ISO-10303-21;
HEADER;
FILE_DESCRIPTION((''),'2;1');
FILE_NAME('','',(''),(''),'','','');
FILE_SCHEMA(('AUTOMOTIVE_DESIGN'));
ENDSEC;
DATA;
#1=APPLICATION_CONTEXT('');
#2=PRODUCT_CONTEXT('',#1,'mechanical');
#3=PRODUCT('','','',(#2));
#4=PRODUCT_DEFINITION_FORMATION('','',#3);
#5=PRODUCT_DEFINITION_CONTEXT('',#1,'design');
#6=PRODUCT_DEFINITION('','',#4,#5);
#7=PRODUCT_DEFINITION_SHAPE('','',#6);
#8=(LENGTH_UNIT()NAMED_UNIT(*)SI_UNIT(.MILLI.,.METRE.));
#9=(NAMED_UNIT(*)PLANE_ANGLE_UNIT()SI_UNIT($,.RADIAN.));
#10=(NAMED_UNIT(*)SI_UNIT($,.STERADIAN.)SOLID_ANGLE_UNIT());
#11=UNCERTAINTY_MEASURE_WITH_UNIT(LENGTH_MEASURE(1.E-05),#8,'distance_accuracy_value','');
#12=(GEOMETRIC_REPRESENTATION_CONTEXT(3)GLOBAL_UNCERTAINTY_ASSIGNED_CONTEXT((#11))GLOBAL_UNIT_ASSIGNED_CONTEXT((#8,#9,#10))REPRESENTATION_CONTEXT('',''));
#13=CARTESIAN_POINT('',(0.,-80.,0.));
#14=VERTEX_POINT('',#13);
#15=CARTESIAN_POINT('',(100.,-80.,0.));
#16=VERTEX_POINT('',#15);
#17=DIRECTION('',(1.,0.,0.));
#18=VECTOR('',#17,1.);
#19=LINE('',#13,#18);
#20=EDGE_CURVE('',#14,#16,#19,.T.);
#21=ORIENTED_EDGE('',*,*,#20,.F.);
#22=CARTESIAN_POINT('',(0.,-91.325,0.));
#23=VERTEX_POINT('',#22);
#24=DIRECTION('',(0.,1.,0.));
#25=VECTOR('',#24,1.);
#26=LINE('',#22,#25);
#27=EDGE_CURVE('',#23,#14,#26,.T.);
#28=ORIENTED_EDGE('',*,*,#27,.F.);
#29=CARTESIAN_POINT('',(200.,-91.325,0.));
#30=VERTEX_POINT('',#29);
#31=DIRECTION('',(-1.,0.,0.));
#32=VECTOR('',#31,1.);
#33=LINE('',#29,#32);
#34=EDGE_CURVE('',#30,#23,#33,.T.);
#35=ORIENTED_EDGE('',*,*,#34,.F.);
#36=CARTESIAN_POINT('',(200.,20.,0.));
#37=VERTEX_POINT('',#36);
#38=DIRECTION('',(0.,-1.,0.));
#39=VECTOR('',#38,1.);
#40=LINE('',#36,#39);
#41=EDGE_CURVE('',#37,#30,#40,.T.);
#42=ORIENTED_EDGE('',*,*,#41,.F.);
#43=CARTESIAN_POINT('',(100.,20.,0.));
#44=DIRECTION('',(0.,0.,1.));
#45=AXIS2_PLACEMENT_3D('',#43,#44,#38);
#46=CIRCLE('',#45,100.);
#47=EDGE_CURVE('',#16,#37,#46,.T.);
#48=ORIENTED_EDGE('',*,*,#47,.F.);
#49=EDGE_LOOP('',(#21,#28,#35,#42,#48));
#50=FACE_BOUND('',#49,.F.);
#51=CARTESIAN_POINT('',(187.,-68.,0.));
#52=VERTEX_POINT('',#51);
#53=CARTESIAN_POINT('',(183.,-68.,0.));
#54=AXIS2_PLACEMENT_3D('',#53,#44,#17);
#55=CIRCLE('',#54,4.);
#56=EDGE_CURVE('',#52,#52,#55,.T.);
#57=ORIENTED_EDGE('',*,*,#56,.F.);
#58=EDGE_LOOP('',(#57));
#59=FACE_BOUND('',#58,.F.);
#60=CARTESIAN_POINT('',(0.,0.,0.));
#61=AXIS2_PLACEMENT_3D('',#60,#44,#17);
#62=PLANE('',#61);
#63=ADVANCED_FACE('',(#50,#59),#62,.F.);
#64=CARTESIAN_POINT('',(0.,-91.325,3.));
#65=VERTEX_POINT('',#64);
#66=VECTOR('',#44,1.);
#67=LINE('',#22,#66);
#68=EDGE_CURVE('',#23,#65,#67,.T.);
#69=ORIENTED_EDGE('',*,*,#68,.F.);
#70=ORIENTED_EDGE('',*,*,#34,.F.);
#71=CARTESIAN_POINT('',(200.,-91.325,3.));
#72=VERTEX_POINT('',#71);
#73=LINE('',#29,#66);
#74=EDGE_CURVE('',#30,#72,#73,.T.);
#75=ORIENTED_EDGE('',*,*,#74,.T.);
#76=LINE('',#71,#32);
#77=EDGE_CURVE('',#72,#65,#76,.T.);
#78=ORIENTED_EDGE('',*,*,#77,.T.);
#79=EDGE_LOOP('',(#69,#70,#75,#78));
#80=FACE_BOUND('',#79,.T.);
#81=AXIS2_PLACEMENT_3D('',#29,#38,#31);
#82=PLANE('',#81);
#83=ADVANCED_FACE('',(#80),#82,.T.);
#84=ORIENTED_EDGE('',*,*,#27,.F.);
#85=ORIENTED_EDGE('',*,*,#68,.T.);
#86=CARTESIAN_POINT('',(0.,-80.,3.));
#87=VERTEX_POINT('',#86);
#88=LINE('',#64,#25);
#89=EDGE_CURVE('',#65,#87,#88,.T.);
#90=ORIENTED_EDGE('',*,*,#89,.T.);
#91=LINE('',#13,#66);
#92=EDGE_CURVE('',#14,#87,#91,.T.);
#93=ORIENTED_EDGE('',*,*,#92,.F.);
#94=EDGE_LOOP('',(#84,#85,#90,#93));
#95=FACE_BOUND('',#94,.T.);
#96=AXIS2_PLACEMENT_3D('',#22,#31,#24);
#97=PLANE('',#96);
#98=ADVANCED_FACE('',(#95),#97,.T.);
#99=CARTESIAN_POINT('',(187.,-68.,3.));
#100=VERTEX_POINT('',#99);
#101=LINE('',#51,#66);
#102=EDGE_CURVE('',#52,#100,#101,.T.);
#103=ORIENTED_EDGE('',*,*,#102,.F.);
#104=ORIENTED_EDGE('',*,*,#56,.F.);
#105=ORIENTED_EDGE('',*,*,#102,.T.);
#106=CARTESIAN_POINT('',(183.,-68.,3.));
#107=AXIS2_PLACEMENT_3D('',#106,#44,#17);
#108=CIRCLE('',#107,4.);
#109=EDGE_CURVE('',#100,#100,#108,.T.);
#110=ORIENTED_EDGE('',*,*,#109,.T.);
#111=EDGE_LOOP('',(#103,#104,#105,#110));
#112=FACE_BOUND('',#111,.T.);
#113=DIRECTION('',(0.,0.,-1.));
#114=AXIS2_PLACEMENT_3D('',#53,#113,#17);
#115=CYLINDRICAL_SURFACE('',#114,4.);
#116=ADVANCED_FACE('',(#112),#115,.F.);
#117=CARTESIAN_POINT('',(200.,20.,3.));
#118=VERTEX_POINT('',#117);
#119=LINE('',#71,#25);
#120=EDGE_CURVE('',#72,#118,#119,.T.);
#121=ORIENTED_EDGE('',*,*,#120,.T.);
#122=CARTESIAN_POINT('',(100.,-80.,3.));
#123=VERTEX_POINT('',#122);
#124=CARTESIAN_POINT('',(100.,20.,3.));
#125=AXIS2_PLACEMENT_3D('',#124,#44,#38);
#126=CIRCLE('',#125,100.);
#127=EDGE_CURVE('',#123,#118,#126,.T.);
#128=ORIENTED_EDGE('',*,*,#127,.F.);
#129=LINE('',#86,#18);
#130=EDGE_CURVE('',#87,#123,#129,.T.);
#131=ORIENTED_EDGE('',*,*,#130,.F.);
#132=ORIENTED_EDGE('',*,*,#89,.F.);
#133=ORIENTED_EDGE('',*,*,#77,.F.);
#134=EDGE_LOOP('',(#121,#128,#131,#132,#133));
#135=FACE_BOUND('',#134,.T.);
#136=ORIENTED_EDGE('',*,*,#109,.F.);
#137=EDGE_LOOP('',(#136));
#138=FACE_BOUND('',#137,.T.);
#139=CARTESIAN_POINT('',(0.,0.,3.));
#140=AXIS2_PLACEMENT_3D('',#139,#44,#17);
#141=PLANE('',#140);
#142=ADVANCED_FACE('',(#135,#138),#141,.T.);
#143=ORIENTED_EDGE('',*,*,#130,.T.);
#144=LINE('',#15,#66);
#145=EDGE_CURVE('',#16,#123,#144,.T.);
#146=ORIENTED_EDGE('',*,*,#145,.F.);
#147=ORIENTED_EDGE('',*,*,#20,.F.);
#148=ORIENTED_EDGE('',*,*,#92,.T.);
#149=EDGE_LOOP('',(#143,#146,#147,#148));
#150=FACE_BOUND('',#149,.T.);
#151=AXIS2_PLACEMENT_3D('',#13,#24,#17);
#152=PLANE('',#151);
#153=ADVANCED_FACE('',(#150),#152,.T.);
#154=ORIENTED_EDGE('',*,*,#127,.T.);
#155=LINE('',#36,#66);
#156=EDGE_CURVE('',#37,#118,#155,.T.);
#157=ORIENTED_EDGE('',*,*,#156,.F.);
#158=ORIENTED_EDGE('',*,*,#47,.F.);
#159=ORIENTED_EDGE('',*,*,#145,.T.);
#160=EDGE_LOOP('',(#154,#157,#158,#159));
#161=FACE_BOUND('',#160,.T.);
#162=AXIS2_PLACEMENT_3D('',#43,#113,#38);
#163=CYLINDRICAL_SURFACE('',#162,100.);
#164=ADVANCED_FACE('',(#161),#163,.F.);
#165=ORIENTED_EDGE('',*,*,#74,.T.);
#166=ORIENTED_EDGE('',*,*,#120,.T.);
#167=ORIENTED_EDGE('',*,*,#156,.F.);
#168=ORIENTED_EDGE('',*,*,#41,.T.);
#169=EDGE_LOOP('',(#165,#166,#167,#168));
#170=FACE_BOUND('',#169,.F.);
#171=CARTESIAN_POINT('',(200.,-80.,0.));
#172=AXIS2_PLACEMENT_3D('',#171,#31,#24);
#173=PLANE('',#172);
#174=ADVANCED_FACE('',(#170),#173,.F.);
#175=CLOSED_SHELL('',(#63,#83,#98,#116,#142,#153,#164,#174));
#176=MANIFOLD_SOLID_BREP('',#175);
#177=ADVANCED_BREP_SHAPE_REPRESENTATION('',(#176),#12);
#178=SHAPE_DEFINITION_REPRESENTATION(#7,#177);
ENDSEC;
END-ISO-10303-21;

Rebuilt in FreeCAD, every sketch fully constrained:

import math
import FreeCAD as App
import Part
import Sketcher

V = App.Vector

doc = App.newDocument("Part")
params = doc.addObject("Spreadsheet::Sheet", "Params")
for row, (alias, value) in enumerate([
    ("sketch1_diameter", "8 mm"),
    ("sketch1_radius", "100 mm"),
    ("sketch1_width", "100 mm"),
    ("pad1_length", "3 mm"),
], start=1):
    params.set(f"A{row}", alias)
    params.set(f"B{row}", "=" + value)
    params.setAlias(f"B{row}", alias)

body = doc.addObject("PartDesign::Body", "Body")

# Sketch on XY plane
sketch1 = body.newObject("Sketcher::SketchObject", "Sketch")
sketch1.AttachmentSupport = (doc.getObject("XY_Plane"), [""])
sketch1.MapMode = "FlatFace"
sketch1.addGeometry([
    Part.LineSegment(V(100, -80, 0), V(0, -80, 0)),  # 0
    Part.LineSegment(V(0, -80, 0), V(0, -91.3, 0)),  # 1
    Part.LineSegment(V(0, -91.3, 0), V(200, -91.3, 0)),  # 2
    Part.LineSegment(V(200, -91.3, 0), V(200, 20, 0)),  # 3
    Part.ArcOfCircle(Part.Circle(V(100, 20, 0), V(0, 0, 1), 100), math.radians(-90), math.radians(0)),  # 4
    Part.Circle(V(183, -68, 0), V(0, 0, 1), 4),  # 5
], False)
sketch1.addConstraint([
    Sketcher.Constraint("Coincident", 0, 2, 1, 1),
    Sketcher.Constraint("Coincident", 1, 2, 2, 1),
    Sketcher.Constraint("Coincident", 2, 2, 3, 1),
    Sketcher.Constraint("Tangent", 3, 2, 4, 2),
    Sketcher.Constraint("Tangent", 4, 1, 0, 1),
    Sketcher.Constraint("Horizontal", 0),
    Sketcher.Constraint("Vertical", 1),
    Sketcher.Constraint("Horizontal", 2),
    Sketcher.Constraint("Vertical", 3),
    Sketcher.Constraint("PointOnObject", 0, 2, -2),
    Sketcher.Constraint("Diameter", 5, 8.0),
    Sketcher.Constraint("Radius", 4, 100.0),
    Sketcher.Constraint("DistanceY", 0, 2, 5, 3, 12.0),
    Sketcher.Constraint("DistanceX", 5, 3, 2, 2, 17.0),
    Sketcher.Constraint("DistanceX", 0, 2, 0, 1, 100.0),
    Sketcher.Constraint("DistanceY", 1, 2, 1, 1, 11.325),
    Sketcher.Constraint("DistanceY", -1, 1, 4, 3, 20.0),
])
sketch1.setExpression("Constraints[10]", "Params.sketch1_diameter")
sketch1.setExpression("Constraints[11]", "Params.sketch1_radius")
sketch1.setExpression("Constraints[14]", "Params.sketch1_width")
pad1 = body.newObject("PartDesign::Pad", "Pad")
pad1.Profile = sketch1
pad1.setExpression("Length", "Params.pad1_length")

doc.recompute()
